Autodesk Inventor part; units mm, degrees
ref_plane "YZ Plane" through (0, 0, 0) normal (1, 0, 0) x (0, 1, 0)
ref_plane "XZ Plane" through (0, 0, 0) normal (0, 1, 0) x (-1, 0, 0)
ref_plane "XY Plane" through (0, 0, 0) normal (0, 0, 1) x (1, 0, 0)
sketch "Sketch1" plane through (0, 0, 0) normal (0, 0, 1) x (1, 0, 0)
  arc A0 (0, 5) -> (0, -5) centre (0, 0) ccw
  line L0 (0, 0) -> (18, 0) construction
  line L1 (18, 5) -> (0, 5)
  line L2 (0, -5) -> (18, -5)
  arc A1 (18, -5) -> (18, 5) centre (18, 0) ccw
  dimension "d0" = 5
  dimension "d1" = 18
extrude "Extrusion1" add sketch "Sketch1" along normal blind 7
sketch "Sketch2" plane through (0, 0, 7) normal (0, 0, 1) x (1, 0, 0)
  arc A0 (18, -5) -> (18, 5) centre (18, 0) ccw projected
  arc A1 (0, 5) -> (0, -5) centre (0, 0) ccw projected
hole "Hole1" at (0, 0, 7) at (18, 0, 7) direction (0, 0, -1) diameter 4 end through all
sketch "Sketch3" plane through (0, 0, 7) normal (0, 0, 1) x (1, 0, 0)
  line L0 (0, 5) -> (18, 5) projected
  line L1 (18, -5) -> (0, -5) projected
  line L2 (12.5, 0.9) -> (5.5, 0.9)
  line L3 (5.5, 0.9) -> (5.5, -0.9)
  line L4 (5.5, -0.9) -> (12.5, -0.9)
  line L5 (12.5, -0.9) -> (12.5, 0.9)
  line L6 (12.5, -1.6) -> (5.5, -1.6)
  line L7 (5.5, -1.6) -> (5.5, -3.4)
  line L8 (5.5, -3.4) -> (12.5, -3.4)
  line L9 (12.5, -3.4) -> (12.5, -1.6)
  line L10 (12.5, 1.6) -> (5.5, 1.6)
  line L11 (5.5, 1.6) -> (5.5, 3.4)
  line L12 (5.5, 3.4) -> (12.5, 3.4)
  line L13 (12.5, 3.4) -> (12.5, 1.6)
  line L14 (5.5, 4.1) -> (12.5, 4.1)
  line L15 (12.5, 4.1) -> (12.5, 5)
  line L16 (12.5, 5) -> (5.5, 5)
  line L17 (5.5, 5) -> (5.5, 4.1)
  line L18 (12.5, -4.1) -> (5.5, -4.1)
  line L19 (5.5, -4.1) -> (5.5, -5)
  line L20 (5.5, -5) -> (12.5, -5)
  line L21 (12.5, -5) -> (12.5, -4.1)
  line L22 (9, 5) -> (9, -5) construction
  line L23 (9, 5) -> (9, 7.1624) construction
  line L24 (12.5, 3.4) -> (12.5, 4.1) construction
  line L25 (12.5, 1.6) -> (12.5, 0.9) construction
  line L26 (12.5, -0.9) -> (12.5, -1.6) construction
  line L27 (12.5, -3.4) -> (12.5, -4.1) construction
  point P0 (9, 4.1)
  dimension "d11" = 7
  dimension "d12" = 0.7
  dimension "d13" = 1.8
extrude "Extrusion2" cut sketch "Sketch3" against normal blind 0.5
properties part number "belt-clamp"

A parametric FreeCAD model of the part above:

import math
import FreeCAD as App
import Part
import Sketcher


def add_polygon(sketch, points):
    """Adds a closed chain of lines whose ends are joined by coincident constraints."""
    first, n = sketch.GeometryCount, len(points)
    for a, b in zip(points, points[1:] + points[:1]):
        sketch.addGeometry(Part.LineSegment(App.Vector(*a, 0), App.Vector(*b, 0)), False)
    for i in range(n):
        sketch.addConstraint(Sketcher.Constraint("Coincident", first + i, 2, first + (i + 1) % n, 1))

doc = App.newDocument("Part")
body = doc.addObject("PartDesign::Body", "Body")

sketch1 = body.newObject("Sketcher::SketchObject", "Sketch")
sketch1.AttachmentSupport = (doc.getObject("XY_Plane"), [""])
sketch1.MapMode = "FlatFace"
sketch1.addGeometry([
    Part.LineSegment(App.Vector(18, 5, 0), App.Vector(0, 5, 0)),
    Part.ArcOfCircle(Part.Circle(App.Vector(0, 0, 0), App.Vector(0, 0, 1), 5), math.radians(90), math.radians(270)),
    Part.LineSegment(App.Vector(0, -5, 0), App.Vector(18, -5, 0)),
    Part.ArcOfCircle(Part.Circle(App.Vector(18, 0, 0), App.Vector(0, 0, 1), 5), math.radians(-90), math.radians(90)),
], False)
sketch1.addConstraint([
    Sketcher.Constraint("Tangent", 0, 2, 1, 1),
    Sketcher.Constraint("Tangent", 1, 2, 2, 1),
    Sketcher.Constraint("Tangent", 2, 2, 3, 1),
    Sketcher.Constraint("Tangent", 3, 2, 0, 1),
    Sketcher.Constraint("Horizontal", 0),
    Sketcher.Constraint("Horizontal", 2),
    Sketcher.Constraint("Coincident", 1, 3, -1, 1),
    Sketcher.Constraint("Radius", 1, 5.0),
    Sketcher.Constraint("DistanceX", 0, 2, 0, 1, 18.0),
])
pad1 = body.newObject("PartDesign::Pad", "Pad")
pad1.Profile = sketch1
pad1.Length = 7

sketch2 = body.newObject("Sketcher::SketchObject", "Sketch001")
sketch2.AttachmentSupport = (doc.getObject("XY_Plane"), [""])
sketch2.MapMode = "FlatFace"
sketch2.AttachmentOffset = App.Placement(App.Vector(0, 0, 7), App.Rotation())
sketch2.addGeometry([
    Part.Circle(App.Vector(0, 0, 0), App.Vector(0, 0, 1), 2),
    Part.Circle(App.Vector(18, 0, 0), App.Vector(0, 0, 1), 2),
], False)
sketch2.addConstraint([
    Sketcher.Constraint("Coincident", 0, 3, -1, 1),
    Sketcher.Constraint("Equal", 0, 1),
    Sketcher.Constraint("PointOnObject", 1, 3, -1),
    Sketcher.Constraint("Diameter", 0, 4.0),
    Sketcher.Constraint("DistanceX", -1, 1, 1, 3, 18.0),
])
doc.recompute()
hole = body.newObject("PartDesign::Hole", "Hole")
hole.Profile = sketch2
hole.ThreadType = "None"
hole.Diameter = 4
hole.DepthType = "ThroughAll"

sketch3 = body.newObject("Sketcher::SketchObject", "Sketch002")
sketch3.AttachmentSupport = (doc.getObject("XY_Plane"), [""])
sketch3.MapMode = "FlatFace"
sketch3.AttachmentOffset = App.Placement(App.Vector(0, 0, 7), App.Rotation())
add_polygon(sketch3, [(12.5, 5), (5.5, 5), (5.5, 4.1), (12.5, 4.1)])
add_polygon(sketch3, [(5.5, -5), (12.5, -5), (12.5, -4.1), (5.5, -4.1)])
add_polygon(sketch3, [(12.5, -0.9), (12.5, 0.9), (5.5, 0.9), (5.5, -0.9)])
add_polygon(sketch3, [(12.5, -3.4), (12.5, -1.6), (5.5, -1.6), (5.5, -3.4)])
add_polygon(sketch3, [(5.5, 1.6), (12.5, 1.6), (12.5, 3.4), (5.5, 3.4)])
sketch3.addConstraint([
    Sketcher.Constraint("Horizontal", 0),
    Sketcher.Constraint("Vertical", 1),
    Sketcher.Constraint("Horizontal", 2),
    Sketcher.Constraint("Vertical", 3),
    Sketcher.Constraint("Horizontal", 4),
    Sketcher.Constraint("Vertical", 5),
    Sketcher.Constraint("Horizontal", 6),
    Sketcher.Constraint("Vertical", 7),
    Sketcher.Constraint("Vertical", 8),
    Sketcher.Constraint("Horizontal", 9),
    Sketcher.Constraint("Vertical", 10),
    Sketcher.Constraint("Horizontal", 11),
    Sketcher.Constraint("Vertical", 12),
    Sketcher.Constraint("Horizontal", 13),
    Sketcher.Constraint("Vertical", 14),
    Sketcher.Constraint("Horizontal", 15),
    Sketcher.Constraint("Horizontal", 16),
    Sketcher.Constraint("Vertical", 17),
    Sketcher.Constraint("Horizontal", 18),
    Sketcher.Constraint("Vertical", 19),
    Sketcher.Constraint("Symmetric", 3, 2, 4, 2, -1),
    Sketcher.Constraint("Symmetric", 1, 2, 6, 2, -1),
    Sketcher.Constraint("Symmetric", 12, 2, 16, 2, -1),
    Sketcher.Constraint("Symmetric", 14, 2, 18, 2, -1),
    Sketcher.Constraint("Vertical", 5, 2, 8, 2),
    Sketcher.Constraint("Vertical", 7, 2, 9, 2),
    Sketcher.Constraint("Vertical", 11, 2, 12, 2),
    Sketcher.Constraint("Vertical", 10, 2, 13, 2),
    Sketcher.Constraint("Equal", 10, 12),
    Sketcher.Constraint("DistanceX", 0, 2, 0, 1, 7.0),
    Sketcher.Constraint("DistanceY", 8, 1, 8, 2, 1.8),
    Sketcher.Constraint("DistanceY", 12, 2, 11, 2, 0.7),
    Sketcher.Constraint("DistanceY", 6, 2, 14, 2, 0.7),
    Sketcher.Constraint("DistanceY", 8, 2, 16, 2, 0.7),
    Sketcher.Constraint("DistanceY", 1, 2, 1, 1, 0.9),
    Sketcher.Constraint("DistanceX", -1, 1, 0, 2, 5.5),
])
pocket1 = body.newObject("PartDesign::Pocket", "Pocket")
pocket1.Profile = sketch3
pocket1.Length = 0.5

doc.recompute()
